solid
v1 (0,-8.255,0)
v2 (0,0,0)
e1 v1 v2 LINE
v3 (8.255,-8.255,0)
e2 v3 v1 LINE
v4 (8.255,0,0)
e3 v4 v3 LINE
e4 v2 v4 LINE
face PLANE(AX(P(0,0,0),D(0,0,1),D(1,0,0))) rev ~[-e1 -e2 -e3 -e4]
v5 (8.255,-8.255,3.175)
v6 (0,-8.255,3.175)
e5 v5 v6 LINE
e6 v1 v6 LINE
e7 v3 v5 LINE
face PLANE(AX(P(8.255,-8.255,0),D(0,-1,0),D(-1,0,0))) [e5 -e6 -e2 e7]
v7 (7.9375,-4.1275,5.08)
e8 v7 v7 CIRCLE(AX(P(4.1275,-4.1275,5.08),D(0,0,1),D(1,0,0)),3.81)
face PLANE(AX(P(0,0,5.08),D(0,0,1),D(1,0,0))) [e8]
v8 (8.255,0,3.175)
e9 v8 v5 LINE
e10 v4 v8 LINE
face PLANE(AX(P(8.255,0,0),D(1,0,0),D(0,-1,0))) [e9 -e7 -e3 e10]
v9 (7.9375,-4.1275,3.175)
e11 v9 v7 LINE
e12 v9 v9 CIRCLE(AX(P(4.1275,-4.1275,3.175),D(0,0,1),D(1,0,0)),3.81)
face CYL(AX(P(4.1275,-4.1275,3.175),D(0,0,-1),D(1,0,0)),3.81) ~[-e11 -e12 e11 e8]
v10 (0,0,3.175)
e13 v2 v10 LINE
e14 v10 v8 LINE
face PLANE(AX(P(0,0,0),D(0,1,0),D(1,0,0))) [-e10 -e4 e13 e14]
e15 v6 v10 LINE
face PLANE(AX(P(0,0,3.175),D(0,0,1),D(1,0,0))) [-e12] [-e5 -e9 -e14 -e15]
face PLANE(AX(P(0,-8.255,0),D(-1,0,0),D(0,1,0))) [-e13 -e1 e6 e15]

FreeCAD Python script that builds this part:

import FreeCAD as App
import Part
import Sketcher

V = App.Vector
Q = App.Units.Quantity

doc = App.newDocument("Part")
params = doc.addObject("Spreadsheet::Sheet", "Params")
for row, (alias, value) in enumerate([
    ("sketch1_width", "0.325 in"),
    ("pad1_length", "0.125 in"),
    ("sketch2_diameter", "0.3 in"),
    ("pad2_length", "0.075 in"),
], start=1):
    params.set(f"A{row}", alias)
    params.set(f"B{row}", "=" + value)
    params.setAlias(f"B{row}", alias)

body = doc.addObject("PartDesign::Body", "Body")

# Sketch on XY plane
sketch1 = body.newObject("Sketcher::SketchObject", "Sketch")
sketch1.AttachmentSupport = (doc.getObject("XY_Plane"), [""])
sketch1.MapMode = "FlatFace"
sketch1.addGeometry(Part.LineSegment(V(8, 0, 0), V(0, 0, 0)), False)
sketch1.addGeometry(Part.LineSegment(V(0, 0, 0), V(0, -8, 0)), False)
sketch1.addGeometry(Part.LineSegment(V(0, -8, 0), V(8, -8, 0)), False)
sketch1.addGeometry(Part.LineSegment(V(8, -8, 0), V(8, 0, 0)), False)
sketch1.addConstraint(Sketcher.Constraint("Coincident", 0, 2, 1, 1))
sketch1.addConstraint(Sketcher.Constraint("Coincident", 1, 2, 2, 1))
sketch1.addConstraint(Sketcher.Constraint("Coincident", 2, 2, 3, 1))
sketch1.addConstraint(Sketcher.Constraint("Coincident", 3, 2, 0, 1))
sketch1.addConstraint(Sketcher.Constraint("Horizontal", 0))
sketch1.addConstraint(Sketcher.Constraint("Vertical", 1))
sketch1.addConstraint(Sketcher.Constraint("Horizontal", 2))
sketch1.addConstraint(Sketcher.Constraint("Vertical", 3))
sketch1.addConstraint(Sketcher.Constraint("Coincident", 0, 2, -1, 1))
sketch1.addConstraint(Sketcher.Constraint("Equal", 2, 1))
sketch1.addConstraint(Sketcher.Constraint("DistanceX", 0, 2, 0, 1, Q("0.325 in")))
sketch1.setExpression("Constraints[10]", "Params.sketch1_width")
pad1 = body.newObject("PartDesign::Pad", "Pad")
pad1.Profile = sketch1
pad1.setExpression("Length", "Params.pad1_length")

# Sketch on XY plane
sketch2 = body.newObject("Sketcher::SketchObject", "Sketch001")
sketch2.AttachmentSupport = (doc.getObject("XY_Plane"), [""])
sketch2.MapMode = "FlatFace"
sketch2.AttachmentOffset = App.Placement(V(0, 0, 0.125 * 25.4), App.Rotation())
sketch2.addGeometry(Part.Circle(V(4.1, -4.1, 0), V(0, 0, 1), 3.8), False)
sketch2.addConstraint(Sketcher.Constraint("Diameter", 0, Q("0.3 in")))
sketch2.addConstraint(Sketcher.Constraint("DistanceX", -1, 1, 0, 3, Q("0.1625 in")))
sketch2.addConstraint(Sketcher.Constraint("DistanceY", 0, 3, -1, 1, Q("0.1625 in")))
sketch2.setExpression("Constraints[0]", "Params.sketch2_diameter")
pad2 = body.newObject("PartDesign::Pad", "Pad001")
pad2.Profile = sketch2
pad2.setExpression("Length", "Params.pad2_length")

doc.recompute()
